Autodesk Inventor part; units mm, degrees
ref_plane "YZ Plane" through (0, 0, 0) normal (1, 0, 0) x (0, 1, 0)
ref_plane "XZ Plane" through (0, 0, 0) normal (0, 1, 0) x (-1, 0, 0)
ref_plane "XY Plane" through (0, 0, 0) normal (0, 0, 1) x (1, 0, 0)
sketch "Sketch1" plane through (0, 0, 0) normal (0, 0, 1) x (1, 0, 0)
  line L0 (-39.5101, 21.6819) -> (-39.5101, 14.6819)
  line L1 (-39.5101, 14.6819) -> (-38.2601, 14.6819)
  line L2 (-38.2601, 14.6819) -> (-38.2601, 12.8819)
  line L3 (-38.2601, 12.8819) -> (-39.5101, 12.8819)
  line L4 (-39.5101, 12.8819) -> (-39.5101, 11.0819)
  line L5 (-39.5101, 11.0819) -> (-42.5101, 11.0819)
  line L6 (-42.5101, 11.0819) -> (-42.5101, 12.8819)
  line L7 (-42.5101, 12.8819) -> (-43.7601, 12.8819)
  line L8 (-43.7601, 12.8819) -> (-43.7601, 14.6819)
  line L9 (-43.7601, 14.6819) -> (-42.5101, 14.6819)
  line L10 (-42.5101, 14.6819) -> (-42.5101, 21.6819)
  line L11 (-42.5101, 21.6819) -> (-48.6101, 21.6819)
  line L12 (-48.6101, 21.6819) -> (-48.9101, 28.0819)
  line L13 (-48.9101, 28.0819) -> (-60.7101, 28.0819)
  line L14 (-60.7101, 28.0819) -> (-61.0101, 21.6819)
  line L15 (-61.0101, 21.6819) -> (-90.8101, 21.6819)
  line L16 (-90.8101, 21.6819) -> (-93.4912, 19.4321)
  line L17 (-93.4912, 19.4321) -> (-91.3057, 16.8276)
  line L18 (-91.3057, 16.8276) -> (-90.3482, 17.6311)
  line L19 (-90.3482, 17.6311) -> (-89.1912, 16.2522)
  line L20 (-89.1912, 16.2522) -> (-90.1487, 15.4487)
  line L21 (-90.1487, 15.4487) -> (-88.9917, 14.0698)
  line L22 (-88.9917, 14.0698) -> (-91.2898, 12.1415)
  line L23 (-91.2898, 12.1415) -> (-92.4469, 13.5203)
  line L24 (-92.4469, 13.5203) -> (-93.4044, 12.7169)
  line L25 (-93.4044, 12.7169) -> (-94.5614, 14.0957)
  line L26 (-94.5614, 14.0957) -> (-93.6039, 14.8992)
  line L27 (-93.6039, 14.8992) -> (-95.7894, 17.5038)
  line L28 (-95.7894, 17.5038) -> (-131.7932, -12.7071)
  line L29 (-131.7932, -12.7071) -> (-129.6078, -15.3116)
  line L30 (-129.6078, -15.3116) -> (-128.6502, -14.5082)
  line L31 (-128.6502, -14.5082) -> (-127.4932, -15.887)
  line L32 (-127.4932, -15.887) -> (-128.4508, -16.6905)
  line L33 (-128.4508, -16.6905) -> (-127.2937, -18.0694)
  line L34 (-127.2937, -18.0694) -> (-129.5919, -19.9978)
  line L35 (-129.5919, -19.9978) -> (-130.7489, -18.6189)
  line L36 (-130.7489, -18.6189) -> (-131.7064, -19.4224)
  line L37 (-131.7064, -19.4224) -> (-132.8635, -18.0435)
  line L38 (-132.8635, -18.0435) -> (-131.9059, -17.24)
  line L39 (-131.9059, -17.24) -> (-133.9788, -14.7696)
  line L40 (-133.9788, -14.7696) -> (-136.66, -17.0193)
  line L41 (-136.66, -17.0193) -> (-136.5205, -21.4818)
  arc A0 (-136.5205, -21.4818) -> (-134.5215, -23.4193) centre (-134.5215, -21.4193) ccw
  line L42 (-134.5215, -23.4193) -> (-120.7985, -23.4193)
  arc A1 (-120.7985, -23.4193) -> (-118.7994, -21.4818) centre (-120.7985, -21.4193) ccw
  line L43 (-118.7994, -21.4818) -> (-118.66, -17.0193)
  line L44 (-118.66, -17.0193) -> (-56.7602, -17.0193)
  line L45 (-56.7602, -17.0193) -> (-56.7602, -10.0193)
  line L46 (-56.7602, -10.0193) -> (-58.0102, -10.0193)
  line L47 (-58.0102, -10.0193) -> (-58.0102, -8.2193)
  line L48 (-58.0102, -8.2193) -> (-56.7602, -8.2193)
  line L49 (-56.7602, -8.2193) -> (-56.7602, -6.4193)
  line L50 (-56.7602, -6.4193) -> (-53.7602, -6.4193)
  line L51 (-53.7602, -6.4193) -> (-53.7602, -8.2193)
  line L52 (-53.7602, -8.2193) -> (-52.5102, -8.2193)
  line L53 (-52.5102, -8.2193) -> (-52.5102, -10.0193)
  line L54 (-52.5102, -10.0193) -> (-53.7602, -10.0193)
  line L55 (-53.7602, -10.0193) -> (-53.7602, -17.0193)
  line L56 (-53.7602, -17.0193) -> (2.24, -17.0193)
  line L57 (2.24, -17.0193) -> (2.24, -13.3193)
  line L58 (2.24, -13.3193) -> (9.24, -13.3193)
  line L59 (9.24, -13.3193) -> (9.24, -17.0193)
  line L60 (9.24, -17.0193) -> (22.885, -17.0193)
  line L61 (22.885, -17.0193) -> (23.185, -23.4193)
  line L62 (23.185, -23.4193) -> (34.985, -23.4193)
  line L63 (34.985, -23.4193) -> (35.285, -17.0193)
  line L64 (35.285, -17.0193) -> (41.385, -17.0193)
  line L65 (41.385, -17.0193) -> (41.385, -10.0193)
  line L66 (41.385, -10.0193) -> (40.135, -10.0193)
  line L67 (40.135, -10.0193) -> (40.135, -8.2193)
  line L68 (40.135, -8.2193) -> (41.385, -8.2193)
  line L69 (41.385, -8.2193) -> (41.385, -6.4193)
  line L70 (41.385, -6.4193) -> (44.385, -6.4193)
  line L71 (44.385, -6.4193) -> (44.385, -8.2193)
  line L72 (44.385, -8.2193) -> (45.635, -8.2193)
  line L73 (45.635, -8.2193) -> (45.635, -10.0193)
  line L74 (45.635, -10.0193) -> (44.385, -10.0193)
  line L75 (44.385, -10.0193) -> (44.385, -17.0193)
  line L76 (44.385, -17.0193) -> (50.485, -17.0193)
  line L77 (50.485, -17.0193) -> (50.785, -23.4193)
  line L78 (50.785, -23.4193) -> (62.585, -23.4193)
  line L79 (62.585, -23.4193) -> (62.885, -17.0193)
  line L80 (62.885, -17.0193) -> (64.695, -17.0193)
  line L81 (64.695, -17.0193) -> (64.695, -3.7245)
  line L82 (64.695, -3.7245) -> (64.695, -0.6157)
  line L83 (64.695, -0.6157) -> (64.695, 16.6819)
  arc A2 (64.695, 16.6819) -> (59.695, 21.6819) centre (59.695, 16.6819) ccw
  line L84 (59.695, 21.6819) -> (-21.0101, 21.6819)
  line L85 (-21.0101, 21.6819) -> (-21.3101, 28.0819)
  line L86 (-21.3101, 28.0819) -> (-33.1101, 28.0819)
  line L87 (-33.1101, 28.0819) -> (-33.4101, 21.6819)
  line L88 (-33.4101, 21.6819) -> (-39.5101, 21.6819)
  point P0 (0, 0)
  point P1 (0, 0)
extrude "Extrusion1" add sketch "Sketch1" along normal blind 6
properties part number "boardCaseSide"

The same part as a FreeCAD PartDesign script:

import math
import FreeCAD as App
import Part
import Sketcher
Q = App.Units.Quantity

doc = App.newDocument("Part")
body = doc.addObject("PartDesign::Body", "Body")

# Sketch on XY plane
sketch1 = body.newObject("Sketcher::SketchObject", "Sketch")
sketch1.AttachmentSupport = (doc.getObject("XY_Plane"), [""])
sketch1.MapMode = "FlatFace"
sketch1.addGeometry([
    Part.LineSegment(App.Vector(-33.4, 21.7, 0), App.Vector(-39.5, 21.7, 0)),  # 0
    Part.LineSegment(App.Vector(-39.5, 21.7, 0), App.Vector(-39.5, 14.7, 0)),  # 1
    Part.LineSegment(App.Vector(-39.5, 14.7, 0), App.Vector(-38.3, 14.7, 0)),  # 2
    Part.LineSegment(App.Vector(-38.3, 14.7, 0), App.Vector(-38.3, 12.9, 0)),  # 3
    Part.LineSegment(App.Vector(-38.3, 12.9, 0), App.Vector(-39.5, 12.9, 0)),  # 4
    Part.LineSegment(App.Vector(-39.5, 12.9, 0), App.Vector(-39.5, 11.1, 0)),  # 5
    Part.LineSegment(App.Vector(-39.5, 11.1, 0), App.Vector(-42.5, 11.1, 0)),  # 6
    Part.LineSegment(App.Vector(-42.5, 11.1, 0), App.Vector(-42.5, 12.9, 0)),  # 7
    Part.LineSegment(App.Vector(-42.5, 12.9, 0), App.Vector(-43.8, 12.9, 0)),  # 8
    Part.LineSegment(App.Vector(-43.8, 12.9, 0), App.Vector(-43.8, 14.7, 0)),  # 9
    Part.LineSegment(App.Vector(-43.8, 14.7, 0), App.Vector(-42.5, 14.7, 0)),  # 10
    Part.LineSegment(App.Vector(-42.5, 14.7, 0), App.Vector(-42.5, 21.7, 0)),  # 11
    Part.LineSegment(App.Vector(-42.5, 21.7, 0), App.Vector(-48.6, 21.7, 0)),  # 12
    Part.LineSegment(App.Vector(-48.6, 21.7, 0), App.Vector(-48.9, 28.1, 0)),  # 13
    Part.LineSegment(App.Vector(-48.9, 28.1, 0), App.Vector(-60.7, 28.1, 0)),  # 14
    Part.LineSegment(App.Vector(-60.7, 28.1, 0), App.Vector(-61, 21.7, 0)),  # 15
    Part.LineSegment(App.Vector(-61, 21.7, 0), App.Vector(-90.8, 21.7, 0)),  # 16
    Part.LineSegment(App.Vector(-90.8, 21.7, 0), App.Vector(-93.5, 19.4, 0)),  # 17
    Part.LineSegment(App.Vector(-93.5, 19.4, 0), App.Vector(-91.3, 16.8, 0)),  # 18
    Part.LineSegment(App.Vector(-91.3, 16.8, 0), App.Vector(-90.3, 17.6, 0)),  # 19
    Part.LineSegment(App.Vector(-90.3, 17.6, 0), App.Vector(-89.2, 16.3, 0)),  # 20
    Part.LineSegment(App.Vector(-89.2, 16.3, 0), App.Vector(-90.1, 15.4, 0)),  # 21
    Part.LineSegment(App.Vector(-90.1, 15.4, 0), App.Vector(-89, 14.1, 0)),  # 22
    Part.LineSegment(App.Vector(-89, 14.1, 0), App.Vector(-91.3, 12.1, 0)),  # 23
    Part.LineSegment(App.Vector(-91.3, 12.1, 0), App.Vector(-92.4, 13.5, 0)),  # 24
    Part.LineSegment(App.Vector(-92.4, 13.5, 0), App.Vector(-93.4, 12.7, 0)),  # 25
    Part.LineSegment(App.Vector(-93.4, 12.7, 0), App.Vector(-94.6, 14.1, 0)),  # 26
    Part.LineSegment(App.Vector(-94.6, 14.1, 0), App.Vector(-93.6, 14.9, 0)),  # 27
    Part.LineSegment(App.Vector(-93.6, 14.9, 0), App.Vector(-95.8, 17.5, 0)),  # 28
    Part.LineSegment(App.Vector(-95.8, 17.5, 0), App.Vector(-131.8, -12.7, 0)),  # 29
    Part.LineSegment(App.Vector(-131.8, -12.7, 0), App.Vector(-129.6, -15.3, 0)),  # 30
    Part.LineSegment(App.Vector(-129.6, -15.3, 0), App.Vector(-128.7, -14.5, 0)),  # 31
    Part.LineSegment(App.Vector(-128.7, -14.5, 0), App.Vector(-127.5, -15.9, 0)),  # 32
    Part.LineSegment(App.Vector(-127.5, -15.9, 0), App.Vector(-128.5, -16.7, 0)),  # 33
    Part.LineSegment(App.Vector(-128.5, -16.7, 0), App.Vector(-127.3, -18.1, 0)),  # 34
    Part.LineSegment(App.Vector(-127.3, -18.1, 0), App.Vector(-129.6, -20, 0)),  # 35
    Part.LineSegment(App.Vector(-129.6, -20, 0), App.Vector(-130.7, -18.6, 0)),  # 36
    Part.LineSegment(App.Vector(-130.7, -18.6, 0), App.Vector(-131.7, -19.4, 0)),  # 37
    Part.LineSegment(App.Vector(-131.7, -19.4, 0), App.Vector(-132.9, -18, 0)),  # 38
    Part.LineSegment(App.Vector(-132.9, -18, 0), App.Vector(-131.9, -17.2, 0)),  # 39
    Part.LineSegment(App.Vector(-131.9, -17.2, 0), App.Vector(-134, -14.8, 0)),  # 40
    Part.LineSegment(App.Vector(-134, -14.8, 0), App.Vector(-136.7, -17, 0)),  # 41
    Part.LineSegment(App.Vector(-136.7, -17, 0), App.Vector(-136.5, -21.5, 0)),  # 42
    Part.ArcOfCircle(Part.Circle(App.Vector(-134.5, -21.4, 0), App.Vector(0, 0, 1), 2), math.radians(-178), math.radians(-90)),  # 43
    Part.LineSegment(App.Vector(-134.5, -23.4, 0), App.Vector(-120.8, -23.4, 0)),  # 44
    Part.ArcOfCircle(Part.Circle(App.Vector(-120.8, -21.4, 0), App.Vector(0, 0, 1), 2), math.radians(-90), math.radians(-2)),  # 45
    Part.LineSegment(App.Vector(-118.8, -21.5, 0), App.Vector(-118.7, -17, 0)),  # 46
    Part.LineSegment(App.Vector(-118.7, -17, 0), App.Vector(-56.8, -17, 0)),  # 47
    Part.LineSegment(App.Vector(-56.8, -17, 0), App.Vector(-56.8, -10, 0)),  # 48
    Part.LineSegment(App.Vector(-56.8, -10, 0), App.Vector(-58, -10, 0)),  # 49
    Part.LineSegment(App.Vector(-58, -10, 0), App.Vector(-58, -8.2, 0)),  # 50
    Part.LineSegment(App.Vector(-58, -8.2, 0), App.Vector(-56.8, -8.2, 0)),  # 51
    Part.LineSegment(App.Vector(-56.8, -8.2, 0), App.Vector(-56.8, -6.4, 0)),  # 52
    Part.LineSegment(App.Vector(-56.8, -6.4, 0), App.Vector(-53.8, -6.4, 0)),  # 53
    Part.LineSegment(App.Vector(-53.8, -6.4, 0), App.Vector(-53.8, -8.2, 0)),  # 54
    Part.LineSegment(App.Vector(-53.8, -8.2, 0), App.Vector(-52.5, -8.2, 0)),  # 55
    Part.LineSegment(App.Vector(-52.5, -8.2, 0), App.Vector(-52.5, -10, 0)),  # 56
    Part.LineSegment(App.Vector(-52.5, -10, 0), App.Vector(-53.8, -10, 0)),  # 57
    Part.LineSegment(App.Vector(-53.8, -10, 0), App.Vector(-53.8, -17, 0)),  # 58
    Part.LineSegment(App.Vector(-53.8, -17, 0), App.Vector(2.2, -17, 0)),  # 59
    Part.LineSegment(App.Vector(2.2, -17, 0), App.Vector(2.2, -13.3, 0)),  # 60
    Part.LineSegment(App.Vector(2.2, -13.3, 0), App.Vector(9.2, -13.3, 0)),  # 61
    Part.LineSegment(App.Vector(9.2, -13.3, 0), App.Vector(9.2, -17, 0)),  # 62
    Part.LineSegment(App.Vector(9.2, -17, 0), App.Vector(22.9, -17, 0)),  # 63
    Part.LineSegment(App.Vector(22.9, -17, 0), App.Vector(23.2, -23.4, 0)),  # 64
    Part.LineSegment(App.Vector(23.2, -23.4, 0), App.Vector(35, -23.4, 0)),  # 65
    Part.LineSegment(App.Vector(35, -23.4, 0), App.Vector(35.3, -17, 0)),  # 66
    Part.LineSegment(App.Vector(35.3, -17, 0), App.Vector(41.4, -17, 0)),  # 67
    Part.LineSegment(App.Vector(41.4, -17, 0), App.Vector(41.4, -10, 0)),  # 68
    Part.LineSegment(App.Vector(41.4, -10, 0), App.Vector(40.1, -10, 0)),  # 69
    Part.LineSegment(App.Vector(40.1, -10, 0), App.Vector(40.1, -8.2, 0)),  # 70
    Part.LineSegment(App.Vector(40.1, -8.2, 0), App.Vector(41.4, -8.2, 0)),  # 71
    Part.LineSegment(App.Vector(41.4, -8.2, 0), App.Vector(41.4, -6.4, 0)),  # 72
    Part.LineSegment(App.Vector(41.4, -6.4, 0), App.Vector(44.4, -6.4, 0)),  # 73
    Part.LineSegment(App.Vector(44.4, -6.4, 0), App.Vector(44.4, -8.2, 0)),  # 74
    Part.LineSegment(App.Vector(44.4, -8.2, 0), App.Vector(45.6, -8.2, 0)),  # 75
    Part.LineSegment(App.Vector(45.6, -8.2, 0), App.Vector(45.6, -10, 0)),  # 76
    Part.LineSegment(App.Vector(45.6, -10, 0), App.Vector(44.4, -10, 0)),  # 77
    Part.LineSegment(App.Vector(44.4, -10, 0), App.Vector(44.4, -17, 0)),  # 78
    Part.LineSegment(App.Vector(44.4, -17, 0), App.Vector(50.5, -17, 0)),  # 79
    Part.LineSegment(App.Vector(50.5, -17, 0), App.Vector(50.8, -23.4, 0)),  # 80
    Part.LineSegment(App.Vector(50.8, -23.4, 0), App.Vector(62.6, -23.4, 0)),  # 81
    Part.LineSegment(App.Vector(62.6, -23.4, 0), App.Vector(62.9, -17, 0)),  # 82
    Part.LineSegment(App.Vector(62.9, -17, 0), App.Vector(64.7, -17, 0)),  # 83
    Part.LineSegment(App.Vector(64.7, -17, 0), App.Vector(64.7, 16.7, 0)),  # 84
    Part.ArcOfCircle(Part.Circle(App.Vector(59.7, 16.7, 0), App.Vector(0, 0, 1), 5), math.radians(0), math.radians(90)),  # 85
    Part.LineSegment(App.Vector(59.7, 21.7, 0), App.Vector(-21, 21.7, 0)),  # 86
    Part.LineSegment(App.Vector(-21, 21.7, 0), App.Vector(-21.3, 28.1, 0)),  # 87
    Part.LineSegment(App.Vector(-21.3, 28.1, 0), App.Vector(-33.1, 28.1, 0)),  # 88
    Part.LineSegment(App.Vector(-33.1, 28.1, 0), App.Vector(-33.4, 21.7, 0)),  # 89
], False)
sketch1.addConstraint([
    Sketcher.Constraint("Coincident", 0, 2, 1, 1),
    Sketcher.Constraint("Coincident", 1, 2, 2, 1),
    Sketcher.Constraint("Coincident", 2, 2, 3, 1),
    Sketcher.Constraint("Coincident", 3, 2, 4, 1),
    Sketcher.Constraint("Coincident", 4, 2, 5, 1),
    Sketcher.Constraint("Coincident", 5, 2, 6, 1),
    Sketcher.Constraint("Coincident", 6, 2, 7, 1),
    Sketcher.Constraint("Coincident", 7, 2, 8, 1),
    Sketcher.Constraint("Coincident", 8, 2, 9, 1),
    Sketcher.Constraint("Coincident", 9, 2, 10, 1),
    Sketcher.Constraint("Coincident", 10, 2, 11, 1),
    Sketcher.Constraint("Coincident", 11, 2, 12, 1),
    Sketcher.Constraint("Coincident", 12, 2, 13, 1),
    Sketcher.Constraint("Coincident", 13, 2, 14, 1),
    Sketcher.Constraint("Coincident", 14, 2, 15, 1),
    Sketcher.Constraint("Coincident", 15, 2, 16, 1),
    Sketcher.Constraint("Coincident", 16, 2, 17, 1),
    Sketcher.Constraint("Coincident", 17, 2, 18, 1),
    Sketcher.Constraint("Coincident", 18, 2, 19, 1),
    Sketcher.Constraint("Coincident", 19, 2, 20, 1),
    Sketcher.Constraint("Coincident", 20, 2, 21, 1),
    Sketcher.Constraint("Coincident", 21, 2, 22, 1),
    Sketcher.Constraint("Coincident", 22, 2, 23, 1),
    Sketcher.Constraint("Coincident", 23, 2, 24, 1),
    Sketcher.Constraint("Coincident", 24, 2, 25, 1),
    Sketcher.Constraint("Coincident", 25, 2, 26, 1),
    Sketcher.Constraint("Coincident", 26, 2, 27, 1),
    Sketcher.Constraint("Coincident", 27, 2, 28, 1),
    Sketcher.Constraint("Coincident", 28, 2, 29, 1),
    Sketcher.Constraint("Coincident", 29, 2, 30, 1),
    Sketcher.Constraint("Coincident", 30, 2, 31, 1),
    Sketcher.Constraint("Coincident", 31, 2, 32, 1),
    Sketcher.Constraint("Coincident", 32, 2, 33, 1),
    Sketcher.Constraint("Coincident", 33, 2, 34, 1),
    Sketcher.Constraint("Coincident", 34, 2, 35, 1),
    Sketcher.Constraint("Coincident", 35, 2, 36, 1),
    Sketcher.Constraint("Coincident", 36, 2, 37, 1),
    Sketcher.Constraint("Coincident", 37, 2, 38, 1),
    Sketcher.Constraint("Coincident", 38, 2, 39, 1),
    Sketcher.Constraint("Coincident", 39, 2, 40, 1),
    Sketcher.Constraint("Coincident", 40, 2, 41, 1),
    Sketcher.Constraint("Coincident", 41, 2, 42, 1),
    Sketcher.Constraint("Tangent", 42, 2, 43, 1),
    Sketcher.Constraint("Tangent", 43, 2, 44, 1),
    Sketcher.Constraint("Tangent", 44, 2, 45, 1),
    Sketcher.Constraint("Tangent", 45, 2, 46, 1),
    Sketcher.Constraint("Coincident", 46, 2, 47, 1),
    Sketcher.Constraint("Coincident", 47, 2, 48, 1),
    Sketcher.Constraint("Coincident", 48, 2, 49, 1),
    Sketcher.Constraint("Coincident", 49, 2, 50, 1),
    Sketcher.Constraint("Coincident", 50, 2, 51, 1),
    Sketcher.Constraint("Coincident", 51, 2, 52, 1),
    Sketcher.Constraint("Coincident", 52, 2, 53, 1),
    Sketcher.Constraint("Coincident", 53, 2, 54, 1),
    Sketcher.Constraint("Coincident", 54, 2, 55, 1),
    Sketcher.Constraint("Coincident", 55, 2, 56, 1),
    Sketcher.Constraint("Coincident", 56, 2, 57, 1),
    Sketcher.Constraint("Coincident", 57, 2, 58, 1),
    Sketcher.Constraint("Coincident", 58, 2, 59, 1),
    Sketcher.Constraint("Coincident", 59, 2, 60, 1),
    Sketcher.Constraint("Coincident", 60, 2, 61, 1),
    Sketcher.Constraint("Coincident", 61, 2, 62, 1),
    Sketcher.Constraint("Coincident", 62, 2, 63, 1),
    Sketcher.Constraint("Coincident", 63, 2, 64, 1),
    Sketcher.Constraint("Coincident", 64, 2, 65, 1),
    Sketcher.Constraint("Coincident", 65, 2, 66, 1),
    Sketcher.Constraint("Coincident", 66, 2, 67, 1),
    Sketcher.Constraint("Coincident", 67, 2, 68, 1),
    Sketcher.Constraint("Coincident", 68, 2, 69, 1),
    Sketcher.Constraint("Coincident", 69, 2, 70, 1),
    Sketcher.Constraint("Coincident", 70, 2, 71, 1),
    Sketcher.Constraint("Coincident", 71, 2, 72, 1),
    Sketcher.Constraint("Coincident", 72, 2, 73, 1),
    Sketcher.Constraint("Coincident", 73, 2, 74, 1),
    Sketcher.Constraint("Coincident", 74, 2, 75, 1),
    Sketcher.Constraint("Coincident", 75, 2, 76, 1),
    Sketcher.Constraint("Coincident", 76, 2, 77, 1),
    Sketcher.Constraint("Coincident", 77, 2, 78, 1),
    Sketcher.Constraint("Coincident", 78, 2, 79, 1),
    Sketcher.Constraint("Coincident", 79, 2, 80, 1),
    Sketcher.Constraint("Coincident", 80, 2, 81, 1),
    Sketcher.Constraint("Coincident", 81, 2, 82, 1),
    Sketcher.Constraint("Coincident", 82, 2, 83, 1),
    Sketcher.Constraint("Coincident", 83, 2, 84, 1),
    Sketcher.Constraint("Tangent", 84, 2, 85, 1),
    Sketcher.Constraint("Tangent", 85, 2, 86, 1),
    Sketcher.Constraint("Coincident", 86, 2, 87, 1),
    Sketcher.Constraint("Coincident", 87, 2, 88, 1),
    Sketcher.Constraint("Coincident", 88, 2, 89, 1),
    Sketcher.Constraint("Coincident", 89, 2, 0, 1),
    Sketcher.Constraint("Horizontal", 0),
    Sketcher.Constraint("Vertical", 1),
    Sketcher.Constraint("Horizontal", 2),
    Sketcher.Constraint("Vertical", 3),
    Sketcher.Constraint("Horizontal", 4),
    Sketcher.Constraint("Vertical", 5),
    Sketcher.Constraint("Horizontal", 6),
    Sketcher.Constraint("Vertical", 7),
    Sketcher.Constraint("Horizontal", 8),
    Sketcher.Constraint("Vertical", 9),
    Sketcher.Constraint("Horizontal", 10),
    Sketcher.Constraint("Vertical", 11),
    Sketcher.Constraint("Horizontal", 12),
    Sketcher.Constraint("Horizontal", 14),
    Sketcher.Constraint("Horizontal", 16),
    Sketcher.Constraint("Horizontal", 44),
    Sketcher.Constraint("Horizontal", 47),
    Sketcher.Constraint("Vertical", 48),
    Sketcher.Constraint("Horizontal", 49),
    Sketcher.Constraint("Vertical", 50),
    Sketcher.Constraint("Horizontal", 51),
    Sketcher.Constraint("Vertical", 52),
    Sketcher.Constraint("Horizontal", 53),
    Sketcher.Constraint("Vertical", 54),
    Sketcher.Constraint("Horizontal", 55),
    Sketcher.Constraint("Vertical", 56),
    Sketcher.Constraint("Horizontal", 57),
    Sketcher.Constraint("Vertical", 58),
    Sketcher.Constraint("Horizontal", 59),
    Sketcher.Constraint("Vertical", 60),
    Sketcher.Constraint("Horizontal", 61),
    Sketcher.Constraint("Vertical", 62),
    Sketcher.Constraint("Horizontal", 63),
    Sketcher.Constraint("Horizontal", 65),
    Sketcher.Constraint("Horizontal", 67),
    Sketcher.Constraint("Vertical", 68),
    Sketcher.Constraint("Horizontal", 69),
    Sketcher.Constraint("Vertical", 70),
    Sketcher.Constraint("Horizontal", 71),
    Sketcher.Constraint("Vertical", 72),
    Sketcher.Constraint("Horizontal", 73),
    Sketcher.Constraint("Vertical", 74),
    Sketcher.Constraint("Horizontal", 75),
    Sketcher.Constraint("Vertical", 76),
    Sketcher.Constraint("Horizontal", 77),
    Sketcher.Constraint("Vertical", 78),
    Sketcher.Constraint("Horizontal", 79),
    Sketcher.Constraint("Horizontal", 81),
    Sketcher.Constraint("Horizontal", 83),
    Sketcher.Constraint("Vertical", 84),
    Sketcher.Constraint("Horizontal", 86),
    Sketcher.Constraint("Horizontal", 88),
    Sketcher.Constraint("Equal", 43, 45),
    Sketcher.Constraint("Perpendicular", 17, 18),
    Sketcher.Constraint("Perpendicular", 18, 19),
    Sketcher.Constraint("Perpendicular", 19, 20),
    Sketcher.Constraint("Perpendicular", 20, 21),
    Sketcher.Constraint("Perpendicular", 21, 22),
    Sketcher.Constraint("Perpendicular", 22, 23),
    Sketcher.Constraint("Perpendicular", 23, 24),
    Sketcher.Constraint("Perpendicular", 24, 25),
    Sketcher.Constraint("Perpendicular", 25, 26),
    Sketcher.Constraint("Perpendicular", 26, 27),
    Sketcher.Constraint("Perpendicular", 27, 28),
    Sketcher.Constraint("Perpendicular", 28, 29),
    Sketcher.Constraint("Perpendicular", 29, 30),
    Sketcher.Constraint("Perpendicular", 30, 31),
    Sketcher.Constraint("Perpendicular", 31, 32),
    Sketcher.Constraint("Perpendicular", 32, 33),
    Sketcher.Constraint("Perpendicular", 33, 34),
    Sketcher.Constraint("Perpendicular", 34, 35),
    Sketcher.Constraint("Perpendicular", 35, 36),
    Sketcher.Constraint("Perpendicular", 36, 37),
    Sketcher.Constraint("Perpendicular", 37, 38),
    Sketcher.Constraint("Perpendicular", 38, 39),
    Sketcher.Constraint("Perpendicular", 39, 40),
    Sketcher.Constraint("Perpendicular", 40, 41),
    Sketcher.Constraint("Parallel", 13, 64),
    Sketcher.Constraint("Parallel", 15, 66),
    Sketcher.Constraint("Parallel", 64, 80),
    Sketcher.Constraint("Parallel", 66, 82),
    Sketcher.Constraint("Parallel", 80, 87),
    Sketcher.Constraint("Parallel", 82, 89),
    Sketcher.Constraint("Horizontal", 4, 2, 7, 2),
    Sketcher.Constraint("Horizontal", 2, 2, 9, 2),
    Sketcher.Constraint("Horizontal", 0, 2, 11, 2),
    Sketcher.Constraint("Horizontal", 12, 2, 15, 2),
    Sketcher.Constraint("Horizontal", 42, 2, 45, 2),
    Sketcher.Constraint("Horizontal", 41, 2, 46, 2),
    Sketcher.Constraint("Horizontal", 51, 2, 54, 2),
    Sketcher.Constraint("Horizontal", 49, 2, 56, 2),
    Sketcher.Constraint("Horizontal", 47, 2, 58, 2),
    Sketcher.Constraint("Horizontal", 59, 2, 62, 2),
    Sketcher.Constraint("Horizontal", 44, 2, 64, 2),
    Sketcher.Constraint("Horizontal", 63, 2, 66, 2),
    Sketcher.Constraint("Horizontal", 57, 2, 68, 2),
    Sketcher.Constraint("Horizontal", 55, 2, 70, 2),
    Sketcher.Constraint("Horizontal", 53, 2, 72, 2),
    Sketcher.Constraint("Horizontal", 71, 2, 74, 2),
    Sketcher.Constraint("Horizontal", 69, 2, 76, 2),
    Sketcher.Constraint("Horizontal", 67, 2, 78, 2),
    Sketcher.Constraint("Horizontal", 65, 2, 80, 2),
    Sketcher.Constraint("Horizontal", 79, 2, 82, 2),
    Sketcher.Constraint("Horizontal", 16, 2, 85, 2),
    Sketcher.Constraint("Horizontal", 14, 2, 87, 2),
    Sketcher.Constraint("Vertical", 1, 2, 4, 2),
    Sketcher.Constraint("Vertical", 7, 2, 10, 2),
    Sketcher.Constraint("Vertical", 48, 2, 51, 2),
    Sketcher.Constraint("Vertical", 54, 2, 57, 2),
    Sketcher.Constraint("Vertical", 68, 2, 71, 2),
    Sketcher.Constraint("Vertical", 74, 2, 77, 2),
    Sketcher.Constraint("Equal", 4, 8),
    Sketcher.Constraint("Equal", 0, 12),
    Sketcher.Constraint("Equal", 10, 49),
    Sketcher.Constraint("Equal", 6, 53),
    Sketcher.Constraint("Equal", 51, 55),
    Sketcher.Constraint("Equal", 14, 65),
    Sketcher.Constraint("Equal", 12, 67),
    Sketcher.Constraint("Equal", 57, 69),
    Sketcher.Constraint("Equal", 53, 73),
    Sketcher.Constraint("Equal", 71, 75),
    Sketcher.Constraint("Equal", 67, 79),
    Sketcher.Constraint("Equal", 65, 81),
    Sketcher.Constraint("Equal", 81, 88),
    Sketcher.Constraint("Equal", 61, 1),
    Sketcher.Constraint("Equal", 3, 5),
    Sketcher.Constraint("Equal", 11, 48),
    Sketcher.Constraint("Equal", 9, 50),
    Sketcher.Constraint("Equal", 50, 52),
    Sketcher.Constraint("Equal", 13, 15),
    Sketcher.Constraint("Equal", 19, 21),
    Sketcher.Constraint("Equal", 20, 22),
    Sketcher.Constraint("Equal", 22, 24),
    Sketcher.Constraint("Equal", 21, 25),
    Sketcher.Constraint("Equal", 24, 26),
    Sketcher.Constraint("Equal", 25, 27),
    Sketcher.Constraint("Equal", 18, 28),
    Sketcher.Constraint("Equal", 28, 30),
    Sketcher.Constraint("Equal", 27, 31),
    Sketcher.Constraint("Equal", 26, 32),
    Sketcher.Constraint("Equal", 31, 33),
    Sketcher.Constraint("Equal", 32, 34),
    Sketcher.Constraint("Equal", 23, 35),
    Sketcher.Constraint("Equal", 34, 36),
    Sketcher.Constraint("Equal", 33, 37),
    Sketcher.Constraint("Equal", 36, 38),
    Sketcher.Constraint("Equal", 37, 39),
    Sketcher.Constraint("Equal", 17, 41),
    Sketcher.Constraint("Equal", 15, 64),
    Sketcher.Constraint("Radius", 43, Q("2 mm")),
    Sketcher.Constraint("Radius", 85, Q("5 mm")),
    Sketcher.Constraint("DistanceX", 6, 2, 6, 1, Q("3 mm")),
    Sketcher.Constraint("DistanceX", 61, 1, 61, 2, Q("7 mm")),
    Sketcher.Constraint("Angle", 17, Q("-139.9989 deg")),
    Sketcher.Constraint("Distance", 23, Q("3 mm")),
    Sketcher.Constraint("DistanceX", 0, 2, 0, 1, Q("6.1 mm")),
    Sketcher.Constraint("DistanceX", 14, 2, 14, 1, Q("11.8 mm")),
    Sketcher.Constraint("DistanceX", 16, 2, 16, 1, Q("29.8 mm")),
    Sketcher.Constraint("DistanceY", 3, 2, 3, 1, Q("1.8 mm")),
    Sketcher.Constraint("DistanceY", 60, 1, 60, 2, Q("3.7 mm")),
    Sketcher.Constraint("Distance", 17, Q("3.5 mm")),
    Sketcher.Constraint("Distance", 18, Q("3.4 mm")),
    Sketcher.Constraint("Distance", 20, Q("1.8 mm")),
    Sketcher.Constraint("DistanceX", 2, 1, 2, 2, Q("1.25 mm")),
    Sketcher.Constraint("DistanceX", 83, 1, 83, 2, Q("1.81 mm")),
    Sketcher.Constraint("Angle", 42, Q("-88.2095 deg")),
    Sketcher.Constraint("Distance", 19, Q("1.25 mm")),
    Sketcher.Constraint("DistanceX", 44, 1, 44, 2, Q("13.723 mm")),
    Sketcher.Constraint("DistanceX", 63, 1, 63, 2, Q("13.645 mm")),
    Sketcher.Constraint("DistanceX", 86, 2, 86, 1, Q("80.705 mm")),
    Sketcher.Constraint("DistanceX", 0, 2, -1, 1, Q("39.51 mm")),
    Sketcher.Constraint("DistanceX", 13, 2, -1, 1, Q("48.91 mm")),
    Sketcher.Constraint("DistanceY", 39, 2, -1, 1, Q("17.24 mm")),
    Sketcher.Constraint("DistanceX", 41, 2, -1, 1, Q("136.66 mm")),
    Sketcher.Constraint("DistanceX", 46, 2, -1, 1, Q("118.66 mm")),
    Sketcher.Constraint("DistanceX", 47, 1, 47, 2, Q("61.8998 mm")),
    Sketcher.Constraint("DistanceY", 84, 1, 84, 2, Q("33.7012 mm")),
])
pad1 = body.newObject("PartDesign::Pad", "Pad")
pad1.Profile = sketch1
pad1.Length = 6

doc.recompute()
